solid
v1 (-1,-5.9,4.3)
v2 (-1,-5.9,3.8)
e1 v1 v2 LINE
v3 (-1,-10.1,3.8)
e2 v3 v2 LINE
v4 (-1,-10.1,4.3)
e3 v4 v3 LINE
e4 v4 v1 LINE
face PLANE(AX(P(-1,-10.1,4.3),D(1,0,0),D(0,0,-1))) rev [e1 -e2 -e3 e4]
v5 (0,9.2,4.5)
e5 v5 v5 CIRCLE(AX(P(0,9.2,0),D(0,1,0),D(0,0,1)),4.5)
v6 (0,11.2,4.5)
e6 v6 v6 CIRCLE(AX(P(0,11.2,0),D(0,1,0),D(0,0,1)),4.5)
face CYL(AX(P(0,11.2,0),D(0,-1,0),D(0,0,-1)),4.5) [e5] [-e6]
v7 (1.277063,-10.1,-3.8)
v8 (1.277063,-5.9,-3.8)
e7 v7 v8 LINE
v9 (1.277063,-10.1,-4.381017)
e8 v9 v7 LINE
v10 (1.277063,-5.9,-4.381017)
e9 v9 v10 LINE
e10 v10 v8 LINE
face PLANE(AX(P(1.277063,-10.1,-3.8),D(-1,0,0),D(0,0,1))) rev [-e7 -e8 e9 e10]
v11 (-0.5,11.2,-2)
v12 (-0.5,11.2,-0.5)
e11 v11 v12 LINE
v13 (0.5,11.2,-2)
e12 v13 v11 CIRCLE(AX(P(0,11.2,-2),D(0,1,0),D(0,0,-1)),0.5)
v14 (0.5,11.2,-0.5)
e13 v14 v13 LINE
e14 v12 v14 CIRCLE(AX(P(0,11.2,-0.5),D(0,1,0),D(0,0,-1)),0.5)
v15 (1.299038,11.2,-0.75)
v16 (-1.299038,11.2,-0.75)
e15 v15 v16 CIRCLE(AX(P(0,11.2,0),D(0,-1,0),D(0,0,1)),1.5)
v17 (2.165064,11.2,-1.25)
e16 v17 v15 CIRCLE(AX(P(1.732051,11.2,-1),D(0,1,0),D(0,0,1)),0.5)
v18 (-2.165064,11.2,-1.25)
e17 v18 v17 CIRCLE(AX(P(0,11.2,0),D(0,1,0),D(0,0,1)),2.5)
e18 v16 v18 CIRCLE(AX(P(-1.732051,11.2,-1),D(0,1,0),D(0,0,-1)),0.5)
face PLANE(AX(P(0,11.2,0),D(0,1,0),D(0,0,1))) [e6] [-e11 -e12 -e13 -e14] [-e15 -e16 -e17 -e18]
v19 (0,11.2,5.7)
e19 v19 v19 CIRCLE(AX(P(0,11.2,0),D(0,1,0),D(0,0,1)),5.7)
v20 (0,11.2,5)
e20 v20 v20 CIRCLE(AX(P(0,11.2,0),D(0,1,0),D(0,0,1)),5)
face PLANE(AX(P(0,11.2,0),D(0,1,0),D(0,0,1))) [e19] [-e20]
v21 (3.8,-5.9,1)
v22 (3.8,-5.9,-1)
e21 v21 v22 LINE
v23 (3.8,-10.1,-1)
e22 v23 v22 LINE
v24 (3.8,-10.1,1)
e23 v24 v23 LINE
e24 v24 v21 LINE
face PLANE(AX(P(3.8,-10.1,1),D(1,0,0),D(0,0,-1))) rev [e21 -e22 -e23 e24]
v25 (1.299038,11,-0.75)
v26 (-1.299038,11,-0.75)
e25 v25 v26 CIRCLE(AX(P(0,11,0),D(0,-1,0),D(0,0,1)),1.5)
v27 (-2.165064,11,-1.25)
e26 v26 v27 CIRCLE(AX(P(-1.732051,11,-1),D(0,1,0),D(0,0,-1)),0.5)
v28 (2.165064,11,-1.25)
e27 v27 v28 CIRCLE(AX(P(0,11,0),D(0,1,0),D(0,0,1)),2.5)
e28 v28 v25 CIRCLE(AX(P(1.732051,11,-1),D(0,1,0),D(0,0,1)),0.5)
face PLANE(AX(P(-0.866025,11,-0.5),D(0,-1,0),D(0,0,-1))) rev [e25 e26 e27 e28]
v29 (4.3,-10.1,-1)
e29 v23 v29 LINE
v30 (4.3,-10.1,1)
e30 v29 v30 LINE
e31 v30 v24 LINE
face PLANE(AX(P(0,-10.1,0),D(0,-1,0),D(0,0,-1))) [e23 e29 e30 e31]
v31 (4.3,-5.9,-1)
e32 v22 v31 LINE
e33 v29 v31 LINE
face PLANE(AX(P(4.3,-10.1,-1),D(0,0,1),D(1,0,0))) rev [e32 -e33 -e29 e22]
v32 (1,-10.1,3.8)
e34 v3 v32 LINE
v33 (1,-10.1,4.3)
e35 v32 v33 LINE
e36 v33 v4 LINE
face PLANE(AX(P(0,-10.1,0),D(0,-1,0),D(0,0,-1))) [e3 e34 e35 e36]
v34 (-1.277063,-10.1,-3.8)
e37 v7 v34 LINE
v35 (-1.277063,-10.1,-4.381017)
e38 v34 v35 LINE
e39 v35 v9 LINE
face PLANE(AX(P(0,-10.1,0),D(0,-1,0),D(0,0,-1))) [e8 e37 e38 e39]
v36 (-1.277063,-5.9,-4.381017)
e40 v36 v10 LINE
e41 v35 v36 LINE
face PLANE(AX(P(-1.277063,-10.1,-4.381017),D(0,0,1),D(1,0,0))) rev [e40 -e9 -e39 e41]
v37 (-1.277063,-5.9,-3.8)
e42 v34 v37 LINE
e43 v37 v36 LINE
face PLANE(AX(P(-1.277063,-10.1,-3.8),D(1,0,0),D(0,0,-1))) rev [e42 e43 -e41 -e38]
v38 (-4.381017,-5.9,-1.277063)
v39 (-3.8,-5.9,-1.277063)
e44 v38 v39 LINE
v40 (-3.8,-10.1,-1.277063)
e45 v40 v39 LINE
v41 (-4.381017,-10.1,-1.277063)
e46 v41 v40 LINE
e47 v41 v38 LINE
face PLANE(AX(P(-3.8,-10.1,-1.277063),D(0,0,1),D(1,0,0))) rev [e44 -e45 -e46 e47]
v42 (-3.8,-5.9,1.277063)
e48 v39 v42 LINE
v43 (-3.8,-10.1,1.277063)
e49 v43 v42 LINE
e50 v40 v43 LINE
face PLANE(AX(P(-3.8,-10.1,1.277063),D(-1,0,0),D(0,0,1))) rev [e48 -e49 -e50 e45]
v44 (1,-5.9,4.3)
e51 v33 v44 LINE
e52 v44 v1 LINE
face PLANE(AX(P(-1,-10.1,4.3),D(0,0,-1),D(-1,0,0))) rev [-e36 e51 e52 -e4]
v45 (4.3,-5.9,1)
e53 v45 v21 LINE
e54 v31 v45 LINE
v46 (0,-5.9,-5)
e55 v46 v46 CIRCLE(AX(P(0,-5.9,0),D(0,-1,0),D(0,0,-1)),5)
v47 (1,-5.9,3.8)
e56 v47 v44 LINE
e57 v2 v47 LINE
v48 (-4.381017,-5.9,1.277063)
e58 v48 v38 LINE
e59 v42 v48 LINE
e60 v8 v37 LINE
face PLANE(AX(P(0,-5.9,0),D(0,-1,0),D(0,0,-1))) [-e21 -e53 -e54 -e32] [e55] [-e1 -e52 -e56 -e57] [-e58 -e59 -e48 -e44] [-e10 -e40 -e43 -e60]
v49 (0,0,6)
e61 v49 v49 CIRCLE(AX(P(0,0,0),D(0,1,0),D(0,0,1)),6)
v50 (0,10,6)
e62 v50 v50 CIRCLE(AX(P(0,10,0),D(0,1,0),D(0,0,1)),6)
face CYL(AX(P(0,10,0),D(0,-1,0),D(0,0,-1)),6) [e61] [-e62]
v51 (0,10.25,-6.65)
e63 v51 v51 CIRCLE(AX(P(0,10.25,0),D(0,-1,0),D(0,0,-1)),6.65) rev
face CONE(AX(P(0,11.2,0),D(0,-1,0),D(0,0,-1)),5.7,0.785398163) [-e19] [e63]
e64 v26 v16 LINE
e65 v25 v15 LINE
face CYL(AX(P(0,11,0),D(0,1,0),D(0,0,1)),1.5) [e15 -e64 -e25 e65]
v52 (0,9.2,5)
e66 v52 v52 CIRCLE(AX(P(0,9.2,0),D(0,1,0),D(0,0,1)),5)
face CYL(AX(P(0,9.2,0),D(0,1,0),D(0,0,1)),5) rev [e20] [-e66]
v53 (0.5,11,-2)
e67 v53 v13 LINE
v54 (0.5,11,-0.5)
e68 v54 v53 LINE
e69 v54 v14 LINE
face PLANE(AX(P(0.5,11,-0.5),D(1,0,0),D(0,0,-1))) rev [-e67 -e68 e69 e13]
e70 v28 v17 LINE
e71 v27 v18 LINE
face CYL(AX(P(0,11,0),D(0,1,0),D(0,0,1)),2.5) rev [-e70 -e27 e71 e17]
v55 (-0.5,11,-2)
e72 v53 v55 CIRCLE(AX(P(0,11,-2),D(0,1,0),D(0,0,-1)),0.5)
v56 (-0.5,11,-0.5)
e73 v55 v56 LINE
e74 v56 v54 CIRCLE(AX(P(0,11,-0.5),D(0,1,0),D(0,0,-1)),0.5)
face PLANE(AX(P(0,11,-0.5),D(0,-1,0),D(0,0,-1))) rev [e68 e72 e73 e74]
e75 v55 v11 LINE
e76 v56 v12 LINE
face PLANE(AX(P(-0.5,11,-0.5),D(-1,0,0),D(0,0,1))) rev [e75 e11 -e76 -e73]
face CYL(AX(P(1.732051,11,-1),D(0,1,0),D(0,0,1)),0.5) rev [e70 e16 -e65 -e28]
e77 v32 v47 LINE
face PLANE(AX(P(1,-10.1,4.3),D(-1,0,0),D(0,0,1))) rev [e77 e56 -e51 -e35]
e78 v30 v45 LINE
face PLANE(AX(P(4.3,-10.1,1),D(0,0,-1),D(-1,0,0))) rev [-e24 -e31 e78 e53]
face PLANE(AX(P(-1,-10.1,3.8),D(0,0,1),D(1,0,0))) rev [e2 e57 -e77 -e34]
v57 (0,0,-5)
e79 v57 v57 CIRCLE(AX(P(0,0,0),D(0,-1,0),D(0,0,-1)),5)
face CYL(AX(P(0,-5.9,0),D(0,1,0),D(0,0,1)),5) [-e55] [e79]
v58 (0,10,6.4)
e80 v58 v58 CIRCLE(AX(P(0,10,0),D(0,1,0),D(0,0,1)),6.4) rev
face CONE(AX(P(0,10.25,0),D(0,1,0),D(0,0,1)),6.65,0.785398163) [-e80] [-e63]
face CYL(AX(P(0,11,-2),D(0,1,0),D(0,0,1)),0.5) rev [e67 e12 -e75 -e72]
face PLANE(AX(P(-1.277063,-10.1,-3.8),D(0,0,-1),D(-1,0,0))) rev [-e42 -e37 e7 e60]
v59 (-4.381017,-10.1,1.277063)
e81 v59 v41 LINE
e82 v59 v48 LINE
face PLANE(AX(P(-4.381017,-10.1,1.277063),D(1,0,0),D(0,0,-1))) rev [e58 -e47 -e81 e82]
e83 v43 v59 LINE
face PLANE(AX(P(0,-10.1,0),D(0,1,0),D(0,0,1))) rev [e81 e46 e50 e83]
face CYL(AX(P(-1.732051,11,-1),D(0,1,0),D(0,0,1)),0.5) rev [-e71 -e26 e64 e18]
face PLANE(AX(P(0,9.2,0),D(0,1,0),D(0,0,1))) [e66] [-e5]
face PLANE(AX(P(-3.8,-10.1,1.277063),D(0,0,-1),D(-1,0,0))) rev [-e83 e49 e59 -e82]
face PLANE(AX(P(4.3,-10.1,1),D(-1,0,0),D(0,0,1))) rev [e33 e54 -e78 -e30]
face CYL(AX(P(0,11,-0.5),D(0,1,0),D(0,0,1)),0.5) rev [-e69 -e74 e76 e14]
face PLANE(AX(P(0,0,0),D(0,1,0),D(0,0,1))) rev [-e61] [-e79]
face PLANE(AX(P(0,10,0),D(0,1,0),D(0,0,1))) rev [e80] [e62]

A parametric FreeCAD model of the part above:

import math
import FreeCAD as App
import Part
import Sketcher
from FreeCAD import Vector
Q = App.Units.Quantity


def edges_at(feature, points):
    """Names of the edges that pass closest to the given points."""
    edges = feature.Shape.Edges
    near = lambda p: min(range(len(edges)), key=lambda i: edges[i].distToShape(Part.Vertex(*p))[0])
    return sorted({f"Edge{near(p) + 1}" for p in points})


def add_polygon(sketch, points):
    """Adds a closed chain of lines whose ends are joined by coincident constraints."""
    first, n = sketch.GeometryCount, len(points)
    for a, b in zip(points, points[1:] + points[:1]):
        sketch.addGeometry(Part.LineSegment(App.Vector(*a, 0), App.Vector(*b, 0)), False)
    for i in range(n):
        sketch.addConstraint(Sketcher.Constraint("Coincident", first + i, 2, first + (i + 1) % n, 1))

doc = App.newDocument("Part")
params = doc.addObject("Spreadsheet::Sheet", "Params")
for row, (alias, value) in enumerate([
    ("sketch1_diameter", "12 mm"),
    ("pad1_length", "10 mm"),
    ("sketch2_diameter", "11.4 mm"),
    ("sketch3_diameter", "13.8 mm"),
    ("chamfer_size", "0.5 mm"),
    ("chamfer_size2", "0.353553 mm"),
    ("sketch4_diameter", "10 mm"),
    ("pocket1_length", "2 mm"),
    ("sketch5_diameter", "9 mm"),
    ("pad2_length", "2 mm"),
    ("sketch6_radius", "0.5 mm"),
    ("sketch6_radius2", "2.5 mm"),
    ("sketch6_height", "1.5 mm"),
    ("pocket2_length", "0.2 mm"),
    ("sketch7_diameter", "10 mm"),
    ("pad3_length", "5.9 mm"),
    ("sketch8_width", "2 mm"),
    ("sketch8_width2", "0.5 mm"),
    ("pad4_length", "4.2 mm"),
], start=1):
    params.set(f"A{row}", alias)
    params.set(f"B{row}", "=" + value)
    params.setAlias(f"B{row}", alias)

body = doc.addObject("PartDesign::Body", "Body")

sketch1 = doc.addObject("Sketcher::SketchObject", "Sketch")
body.addObject(sketch1)
sketch1.AttachmentSupport = (doc.XZ_Plane, [""])
sketch1.MapMode = "FlatFace"
sketch1.addGeometry(Part.Circle(Vector(0, 0, 0), Vector(0, 0, 1), 6), False)
sketch1.addConstraint([
    Sketcher.Constraint("Coincident", 0, 3, -1, 1),
    Sketcher.Constraint("Diameter", 0, Q("12 mm")),
])
sketch1.setExpression("Constraints[1]", "Params.sketch1_diameter")
pad1 = doc.addObject("PartDesign::Pad", "Pad")
body.addObject(pad1)
pad1.Profile = sketch1
pad1.setExpression("Length", "Params.pad1_length")
pad1.Reversed = True

sketch2 = doc.addObject("Sketcher::SketchObject", "Sketch001")
body.addObject(sketch2)
sketch2.AttachmentSupport = (doc.XZ_Plane, [""])
sketch2.MapMode = "FlatFace"
sketch2.AttachmentOffset = App.Placement(Vector(0, 0, -11.2), App.Rotation())
sketch2.addGeometry(Part.Circle(Vector(0, 0, 0), Vector(0, 0, 1), 6), False)
sketch2.addConstraint([
    Sketcher.Constraint("Coincident", 0, 3, -1, 1),
    Sketcher.Constraint("Diameter", 0, Q("11.4 mm")),
])
sketch2.setExpression("Constraints[1]", "Params.sketch2_diameter")

sketch3 = doc.addObject("Sketcher::SketchObject", "Sketch002")
body.addObject(sketch3)
sketch3.AttachmentSupport = (doc.XZ_Plane, [""])
sketch3.MapMode = "FlatFace"
sketch3.AttachmentOffset = App.Placement(Vector(0, 0, -10), App.Rotation())
sketch3.addGeometry(Part.Circle(Vector(0, 0, 0), Vector(0, 0, 1), 7), False)
sketch3.addConstraint([
    Sketcher.Constraint("Coincident", 0, 3, -1, 1),
    Sketcher.Constraint("Diameter", 0, Q("13.8 mm")),
])
sketch3.setExpression("Constraints[1]", "Params.sketch3_diameter")

additiveloft = doc.addObject("PartDesign::AdditiveLoft", "AdditiveLoft")
body.addObject(additiveloft)
additiveloft.Profile = sketch2
additiveloft.Sections = [sketch3]
doc.recompute()

chamfer = doc.addObject("PartDesign::Chamfer", "Chamfer")
body.addObject(chamfer)
chamfer.Base = (additiveloft, edges_at(additiveloft, [(-6.9, 10, 0)]))
chamfer.ChamferType = "Two distances"
chamfer.setExpression("Size", "Params.chamfer_size")
chamfer.setExpression("Size2", "Params.chamfer_size2")

sketch4 = doc.addObject("Sketcher::SketchObject", "Sketch003")
body.addObject(sketch4)
sketch4.AttachmentSupport = (doc.XZ_Plane, [""])
sketch4.MapMode = "FlatFace"
sketch4.AttachmentOffset = App.Placement(Vector(0, 0, -11.2), App.Rotation())
sketch4.addGeometry(Part.Circle(Vector(0, 0, 0), Vector(0, 0, 1), 5), False)
sketch4.addConstraint([
    Sketcher.Constraint("Coincident", 0, 3, -1, 1),
    Sketcher.Constraint("Diameter", 0, Q("10 mm")),
])
sketch4.setExpression("Constraints[1]", "Params.sketch4_diameter")
pocket1 = doc.addObject("PartDesign::Pocket", "Pocket")
body.addObject(pocket1)
pocket1.Profile = sketch4
pocket1.setExpression("Length", "Params.pocket1_length")
pocket1.Reversed = True

sketch5 = doc.addObject("Sketcher::SketchObject", "Sketch004")
body.addObject(sketch5)
sketch5.AttachmentSupport = (doc.XZ_Plane, [""])
sketch5.MapMode = "FlatFace"
sketch5.AttachmentOffset = App.Placement(Vector(0, 0, -9.2), App.Rotation())
sketch5.addGeometry(Part.Circle(Vector(0, 0, 0), Vector(0, 0, 1), 4.5), False)
sketch5.addConstraint([
    Sketcher.Constraint("Coincident", 0, 3, -1, 1),
    Sketcher.Constraint("Diameter", 0, Q("9 mm")),
])
sketch5.setExpression("Constraints[1]", "Params.sketch5_diameter")
pad2 = doc.addObject("PartDesign::Pad", "Pad001")
body.addObject(pad2)
pad2.Profile = sketch5
pad2.setExpression("Length", "Params.pad2_length")
pad2.Reversed = True

sketch6 = doc.addObject("Sketcher::SketchObject", "Sketch005")
body.addObject(sketch6)
sketch6.AttachmentSupport = (doc.XZ_Plane, [""])
sketch6.MapMode = "FlatFace"
sketch6.AttachmentOffset = App.Placement(Vector(0, 0, -11.2), App.Rotation())
sketch6.addGeometry([
    Part.LineSegment(Vector(-0.5, -2, 0), Vector(-0.5, -0.5, 0)),
    Part.ArcOfCircle(Part.Circle(Vector(0, -0.5, 0), Vector(0, 0, 1), 0.5), math.radians(0), math.radians(180)),
    Part.LineSegment(Vector(0.5, -0.5, 0), Vector(0.5, -2, 0)),
    Part.ArcOfCircle(Part.Circle(Vector(0, -2, 0), Vector(0, 0, 1), 0.5), math.radians(180), math.radians(360)),
    Part.ArcOfCircle(Part.Circle(Vector(0, 0, 0), Vector(0, 0, 1), 2.5), math.radians(-30), math.radians(210)),
    Part.ArcOfCircle(Part.Circle(Vector(1.7, -1, 0), Vector(0, 0, 1), 0.5), math.radians(150), math.radians(330)),
    Part.ArcOfCircle(Part.Circle(Vector(0, 0, 0), Vector(0, 0, 1), 1.5), math.radians(-30), math.radians(210)),
    Part.ArcOfCircle(Part.Circle(Vector(-1.7, -1, 0), Vector(0, 0, 1), 0.5), math.radians(-150), math.radians(30)),
], False)
sketch6.addConstraint([
    Sketcher.Constraint("Tangent", 0, 2, 1, 2),
    Sketcher.Constraint("Tangent", 1, 1, 2, 1),
    Sketcher.Constraint("Tangent", 2, 2, 3, 2),
    Sketcher.Constraint("Tangent", 3, 1, 0, 1),
    Sketcher.Constraint("Tangent", 4, 1, 5, 2),
    Sketcher.Constraint("Tangent", 5, 1, 6, 1),
    Sketcher.Constraint("Tangent", 6, 2, 7, 2),
    Sketcher.Constraint("Tangent", 7, 1, 4, 2),
    Sketcher.Constraint("Vertical", 0),
    Sketcher.Constraint("Vertical", 2),
    Sketcher.Constraint("Coincident", 4, 3, -1, 1),
    Sketcher.Constraint("Coincident", 6, 3, -1, 1),
    Sketcher.Constraint("Equal", 3, 5),
    Sketcher.Constraint("PointOnObject", 1, 3, -2),
    Sketcher.Constraint("Horizontal", 5, 3, 7, 3),
    Sketcher.Constraint("Radius", 1, Q("0.5 mm")),
    Sketcher.Constraint("Radius", 4, Q("2.5 mm")),
    Sketcher.Constraint("DistanceY", 0, 1, 0, 2, Q("1.5 mm")),
    Sketcher.Constraint("DistanceY", 3, 3, -1, 1, Q("2 mm")),
    Sketcher.Constraint("DistanceY", 5, 3, -1, 1, Q("1 mm")),
])
sketch6.setExpression("Constraints[15]", "Params.sketch6_radius")
sketch6.setExpression("Constraints[16]", "Params.sketch6_radius2")
sketch6.setExpression("Constraints[17]", "Params.sketch6_height")
pocket2 = doc.addObject("PartDesign::Pocket", "Pocket001")
body.addObject(pocket2)
pocket2.Profile = sketch6
pocket2.setExpression("Length", "Params.pocket2_length")
pocket2.Reversed = True

sketch7 = doc.addObject("Sketcher::SketchObject", "Sketch006")
body.addObject(sketch7)
sketch7.AttachmentSupport = (doc.XZ_Plane, [""])
sketch7.MapMode = "FlatFace"
sketch7.addGeometry(Part.Circle(Vector(0, 0, 0), Vector(0, 0, 1), 5), False)
sketch7.addConstraint([
    Sketcher.Constraint("Coincident", 0, 3, -1, 1),
    Sketcher.Constraint("Diameter", 0, Q("10 mm")),
])
sketch7.setExpression("Constraints[1]", "Params.sketch7_diameter")
pad3 = doc.addObject("PartDesign::Pad", "Pad002")
body.addObject(pad3)
pad3.Profile = sketch7
pad3.setExpression("Length", "Params.pad3_length")

sketch8 = doc.addObject("Sketcher::SketchObject", "Sketch007")
body.addObject(sketch8)
sketch8.AttachmentSupport = (doc.XZ_Plane, [""])
sketch8.MapMode = "FlatFace"
sketch8.AttachmentOffset = App.Placement(Vector(0, 0, 5.9), App.Rotation())
add_polygon(sketch8, [(-1, 4.3), (-1, 3.8), (1, 3.8), (1, 4.3)])
add_polygon(sketch8, [(-1.3, -3.8), (-1.3, -4.4), (1.3, -4.4), (1.3, -3.8)])
add_polygon(sketch8, [(3.8, 1), (3.8, -1), (4.3, -1), (4.3, 1)])
add_polygon(sketch8, [(-4.4, 1.3), (-4.4, -1.3), (-3.8, -1.3), (-3.8, 1.3)])
sketch8.addConstraint([
    Sketcher.Constraint("Vertical", 0),
    Sketcher.Constraint("Horizontal", 1),
    Sketcher.Constraint("Vertical", 2),
    Sketcher.Constraint("Horizontal", 3),
    Sketcher.Constraint("Vertical", 4),
    Sketcher.Constraint("Horizontal", 5),
    Sketcher.Constraint("Vertical", 6),
    Sketcher.Constraint("Horizontal", 7),
    Sketcher.Constraint("Vertical", 8),
    Sketcher.Constraint("Horizontal", 9),
    Sketcher.Constraint("Vertical", 10),
    Sketcher.Constraint("Horizontal", 11),
    Sketcher.Constraint("Vertical", 12),
    Sketcher.Constraint("Horizontal", 13),
    Sketcher.Constraint("Vertical", 14),
    Sketcher.Constraint("Horizontal", 15),
    Sketcher.Constraint("Equal", 11, 0),
    Sketcher.Constraint("Equal", 15, 4),
    Sketcher.Constraint("Equal", 3, 8),
    Sketcher.Constraint("Equal", 7, 12),
    Sketcher.Constraint("DistanceX", 1, 1, 1, 2, Q("2 mm")),
    Sketcher.Constraint("DistanceX", 9, 1, 9, 2, Q("0.5 mm")),
    Sketcher.Constraint("DistanceX", 0, 2, -1, 1, Q("1 mm")),
    Sketcher.Constraint("DistanceY", 8, 2, -1, 1, Q("1 mm")),
    Sketcher.Constraint("DistanceY", -1, 1, 0, 2, Q("3.8 mm")),
    Sketcher.Constraint("DistanceY", 6, 2, -1, 1, Q("3.8 mm")),
    Sketcher.Constraint("DistanceX", -1, 1, 8, 2, Q("3.8 mm")),
    Sketcher.Constraint("DistanceX", 13, 2, -1, 1, Q("3.8 mm")),
    Sketcher.Constraint("DistanceX", 5, 1, 5, 2, Q("2.554126 mm")),
    Sketcher.Constraint("DistanceX", 13, 1, 13, 2, Q("0.581017 mm")),
    Sketcher.Constraint("DistanceX", 12, 2, 6, 2, Q("5.65808 mm")),
    Sketcher.Constraint("DistanceY", 12, 2, -1, 1, Q("1.277063 mm")),
])
sketch8.setExpression("Constraints[36]", "Params.sketch8_width")
sketch8.setExpression("Constraints[37]", "Params.sketch8_width2")
pad4 = doc.addObject("PartDesign::Pad", "Pad003")
body.addObject(pad4)
pad4.Profile = sketch8
pad4.setExpression("Length", "Params.pad4_length")

doc.recompute()
